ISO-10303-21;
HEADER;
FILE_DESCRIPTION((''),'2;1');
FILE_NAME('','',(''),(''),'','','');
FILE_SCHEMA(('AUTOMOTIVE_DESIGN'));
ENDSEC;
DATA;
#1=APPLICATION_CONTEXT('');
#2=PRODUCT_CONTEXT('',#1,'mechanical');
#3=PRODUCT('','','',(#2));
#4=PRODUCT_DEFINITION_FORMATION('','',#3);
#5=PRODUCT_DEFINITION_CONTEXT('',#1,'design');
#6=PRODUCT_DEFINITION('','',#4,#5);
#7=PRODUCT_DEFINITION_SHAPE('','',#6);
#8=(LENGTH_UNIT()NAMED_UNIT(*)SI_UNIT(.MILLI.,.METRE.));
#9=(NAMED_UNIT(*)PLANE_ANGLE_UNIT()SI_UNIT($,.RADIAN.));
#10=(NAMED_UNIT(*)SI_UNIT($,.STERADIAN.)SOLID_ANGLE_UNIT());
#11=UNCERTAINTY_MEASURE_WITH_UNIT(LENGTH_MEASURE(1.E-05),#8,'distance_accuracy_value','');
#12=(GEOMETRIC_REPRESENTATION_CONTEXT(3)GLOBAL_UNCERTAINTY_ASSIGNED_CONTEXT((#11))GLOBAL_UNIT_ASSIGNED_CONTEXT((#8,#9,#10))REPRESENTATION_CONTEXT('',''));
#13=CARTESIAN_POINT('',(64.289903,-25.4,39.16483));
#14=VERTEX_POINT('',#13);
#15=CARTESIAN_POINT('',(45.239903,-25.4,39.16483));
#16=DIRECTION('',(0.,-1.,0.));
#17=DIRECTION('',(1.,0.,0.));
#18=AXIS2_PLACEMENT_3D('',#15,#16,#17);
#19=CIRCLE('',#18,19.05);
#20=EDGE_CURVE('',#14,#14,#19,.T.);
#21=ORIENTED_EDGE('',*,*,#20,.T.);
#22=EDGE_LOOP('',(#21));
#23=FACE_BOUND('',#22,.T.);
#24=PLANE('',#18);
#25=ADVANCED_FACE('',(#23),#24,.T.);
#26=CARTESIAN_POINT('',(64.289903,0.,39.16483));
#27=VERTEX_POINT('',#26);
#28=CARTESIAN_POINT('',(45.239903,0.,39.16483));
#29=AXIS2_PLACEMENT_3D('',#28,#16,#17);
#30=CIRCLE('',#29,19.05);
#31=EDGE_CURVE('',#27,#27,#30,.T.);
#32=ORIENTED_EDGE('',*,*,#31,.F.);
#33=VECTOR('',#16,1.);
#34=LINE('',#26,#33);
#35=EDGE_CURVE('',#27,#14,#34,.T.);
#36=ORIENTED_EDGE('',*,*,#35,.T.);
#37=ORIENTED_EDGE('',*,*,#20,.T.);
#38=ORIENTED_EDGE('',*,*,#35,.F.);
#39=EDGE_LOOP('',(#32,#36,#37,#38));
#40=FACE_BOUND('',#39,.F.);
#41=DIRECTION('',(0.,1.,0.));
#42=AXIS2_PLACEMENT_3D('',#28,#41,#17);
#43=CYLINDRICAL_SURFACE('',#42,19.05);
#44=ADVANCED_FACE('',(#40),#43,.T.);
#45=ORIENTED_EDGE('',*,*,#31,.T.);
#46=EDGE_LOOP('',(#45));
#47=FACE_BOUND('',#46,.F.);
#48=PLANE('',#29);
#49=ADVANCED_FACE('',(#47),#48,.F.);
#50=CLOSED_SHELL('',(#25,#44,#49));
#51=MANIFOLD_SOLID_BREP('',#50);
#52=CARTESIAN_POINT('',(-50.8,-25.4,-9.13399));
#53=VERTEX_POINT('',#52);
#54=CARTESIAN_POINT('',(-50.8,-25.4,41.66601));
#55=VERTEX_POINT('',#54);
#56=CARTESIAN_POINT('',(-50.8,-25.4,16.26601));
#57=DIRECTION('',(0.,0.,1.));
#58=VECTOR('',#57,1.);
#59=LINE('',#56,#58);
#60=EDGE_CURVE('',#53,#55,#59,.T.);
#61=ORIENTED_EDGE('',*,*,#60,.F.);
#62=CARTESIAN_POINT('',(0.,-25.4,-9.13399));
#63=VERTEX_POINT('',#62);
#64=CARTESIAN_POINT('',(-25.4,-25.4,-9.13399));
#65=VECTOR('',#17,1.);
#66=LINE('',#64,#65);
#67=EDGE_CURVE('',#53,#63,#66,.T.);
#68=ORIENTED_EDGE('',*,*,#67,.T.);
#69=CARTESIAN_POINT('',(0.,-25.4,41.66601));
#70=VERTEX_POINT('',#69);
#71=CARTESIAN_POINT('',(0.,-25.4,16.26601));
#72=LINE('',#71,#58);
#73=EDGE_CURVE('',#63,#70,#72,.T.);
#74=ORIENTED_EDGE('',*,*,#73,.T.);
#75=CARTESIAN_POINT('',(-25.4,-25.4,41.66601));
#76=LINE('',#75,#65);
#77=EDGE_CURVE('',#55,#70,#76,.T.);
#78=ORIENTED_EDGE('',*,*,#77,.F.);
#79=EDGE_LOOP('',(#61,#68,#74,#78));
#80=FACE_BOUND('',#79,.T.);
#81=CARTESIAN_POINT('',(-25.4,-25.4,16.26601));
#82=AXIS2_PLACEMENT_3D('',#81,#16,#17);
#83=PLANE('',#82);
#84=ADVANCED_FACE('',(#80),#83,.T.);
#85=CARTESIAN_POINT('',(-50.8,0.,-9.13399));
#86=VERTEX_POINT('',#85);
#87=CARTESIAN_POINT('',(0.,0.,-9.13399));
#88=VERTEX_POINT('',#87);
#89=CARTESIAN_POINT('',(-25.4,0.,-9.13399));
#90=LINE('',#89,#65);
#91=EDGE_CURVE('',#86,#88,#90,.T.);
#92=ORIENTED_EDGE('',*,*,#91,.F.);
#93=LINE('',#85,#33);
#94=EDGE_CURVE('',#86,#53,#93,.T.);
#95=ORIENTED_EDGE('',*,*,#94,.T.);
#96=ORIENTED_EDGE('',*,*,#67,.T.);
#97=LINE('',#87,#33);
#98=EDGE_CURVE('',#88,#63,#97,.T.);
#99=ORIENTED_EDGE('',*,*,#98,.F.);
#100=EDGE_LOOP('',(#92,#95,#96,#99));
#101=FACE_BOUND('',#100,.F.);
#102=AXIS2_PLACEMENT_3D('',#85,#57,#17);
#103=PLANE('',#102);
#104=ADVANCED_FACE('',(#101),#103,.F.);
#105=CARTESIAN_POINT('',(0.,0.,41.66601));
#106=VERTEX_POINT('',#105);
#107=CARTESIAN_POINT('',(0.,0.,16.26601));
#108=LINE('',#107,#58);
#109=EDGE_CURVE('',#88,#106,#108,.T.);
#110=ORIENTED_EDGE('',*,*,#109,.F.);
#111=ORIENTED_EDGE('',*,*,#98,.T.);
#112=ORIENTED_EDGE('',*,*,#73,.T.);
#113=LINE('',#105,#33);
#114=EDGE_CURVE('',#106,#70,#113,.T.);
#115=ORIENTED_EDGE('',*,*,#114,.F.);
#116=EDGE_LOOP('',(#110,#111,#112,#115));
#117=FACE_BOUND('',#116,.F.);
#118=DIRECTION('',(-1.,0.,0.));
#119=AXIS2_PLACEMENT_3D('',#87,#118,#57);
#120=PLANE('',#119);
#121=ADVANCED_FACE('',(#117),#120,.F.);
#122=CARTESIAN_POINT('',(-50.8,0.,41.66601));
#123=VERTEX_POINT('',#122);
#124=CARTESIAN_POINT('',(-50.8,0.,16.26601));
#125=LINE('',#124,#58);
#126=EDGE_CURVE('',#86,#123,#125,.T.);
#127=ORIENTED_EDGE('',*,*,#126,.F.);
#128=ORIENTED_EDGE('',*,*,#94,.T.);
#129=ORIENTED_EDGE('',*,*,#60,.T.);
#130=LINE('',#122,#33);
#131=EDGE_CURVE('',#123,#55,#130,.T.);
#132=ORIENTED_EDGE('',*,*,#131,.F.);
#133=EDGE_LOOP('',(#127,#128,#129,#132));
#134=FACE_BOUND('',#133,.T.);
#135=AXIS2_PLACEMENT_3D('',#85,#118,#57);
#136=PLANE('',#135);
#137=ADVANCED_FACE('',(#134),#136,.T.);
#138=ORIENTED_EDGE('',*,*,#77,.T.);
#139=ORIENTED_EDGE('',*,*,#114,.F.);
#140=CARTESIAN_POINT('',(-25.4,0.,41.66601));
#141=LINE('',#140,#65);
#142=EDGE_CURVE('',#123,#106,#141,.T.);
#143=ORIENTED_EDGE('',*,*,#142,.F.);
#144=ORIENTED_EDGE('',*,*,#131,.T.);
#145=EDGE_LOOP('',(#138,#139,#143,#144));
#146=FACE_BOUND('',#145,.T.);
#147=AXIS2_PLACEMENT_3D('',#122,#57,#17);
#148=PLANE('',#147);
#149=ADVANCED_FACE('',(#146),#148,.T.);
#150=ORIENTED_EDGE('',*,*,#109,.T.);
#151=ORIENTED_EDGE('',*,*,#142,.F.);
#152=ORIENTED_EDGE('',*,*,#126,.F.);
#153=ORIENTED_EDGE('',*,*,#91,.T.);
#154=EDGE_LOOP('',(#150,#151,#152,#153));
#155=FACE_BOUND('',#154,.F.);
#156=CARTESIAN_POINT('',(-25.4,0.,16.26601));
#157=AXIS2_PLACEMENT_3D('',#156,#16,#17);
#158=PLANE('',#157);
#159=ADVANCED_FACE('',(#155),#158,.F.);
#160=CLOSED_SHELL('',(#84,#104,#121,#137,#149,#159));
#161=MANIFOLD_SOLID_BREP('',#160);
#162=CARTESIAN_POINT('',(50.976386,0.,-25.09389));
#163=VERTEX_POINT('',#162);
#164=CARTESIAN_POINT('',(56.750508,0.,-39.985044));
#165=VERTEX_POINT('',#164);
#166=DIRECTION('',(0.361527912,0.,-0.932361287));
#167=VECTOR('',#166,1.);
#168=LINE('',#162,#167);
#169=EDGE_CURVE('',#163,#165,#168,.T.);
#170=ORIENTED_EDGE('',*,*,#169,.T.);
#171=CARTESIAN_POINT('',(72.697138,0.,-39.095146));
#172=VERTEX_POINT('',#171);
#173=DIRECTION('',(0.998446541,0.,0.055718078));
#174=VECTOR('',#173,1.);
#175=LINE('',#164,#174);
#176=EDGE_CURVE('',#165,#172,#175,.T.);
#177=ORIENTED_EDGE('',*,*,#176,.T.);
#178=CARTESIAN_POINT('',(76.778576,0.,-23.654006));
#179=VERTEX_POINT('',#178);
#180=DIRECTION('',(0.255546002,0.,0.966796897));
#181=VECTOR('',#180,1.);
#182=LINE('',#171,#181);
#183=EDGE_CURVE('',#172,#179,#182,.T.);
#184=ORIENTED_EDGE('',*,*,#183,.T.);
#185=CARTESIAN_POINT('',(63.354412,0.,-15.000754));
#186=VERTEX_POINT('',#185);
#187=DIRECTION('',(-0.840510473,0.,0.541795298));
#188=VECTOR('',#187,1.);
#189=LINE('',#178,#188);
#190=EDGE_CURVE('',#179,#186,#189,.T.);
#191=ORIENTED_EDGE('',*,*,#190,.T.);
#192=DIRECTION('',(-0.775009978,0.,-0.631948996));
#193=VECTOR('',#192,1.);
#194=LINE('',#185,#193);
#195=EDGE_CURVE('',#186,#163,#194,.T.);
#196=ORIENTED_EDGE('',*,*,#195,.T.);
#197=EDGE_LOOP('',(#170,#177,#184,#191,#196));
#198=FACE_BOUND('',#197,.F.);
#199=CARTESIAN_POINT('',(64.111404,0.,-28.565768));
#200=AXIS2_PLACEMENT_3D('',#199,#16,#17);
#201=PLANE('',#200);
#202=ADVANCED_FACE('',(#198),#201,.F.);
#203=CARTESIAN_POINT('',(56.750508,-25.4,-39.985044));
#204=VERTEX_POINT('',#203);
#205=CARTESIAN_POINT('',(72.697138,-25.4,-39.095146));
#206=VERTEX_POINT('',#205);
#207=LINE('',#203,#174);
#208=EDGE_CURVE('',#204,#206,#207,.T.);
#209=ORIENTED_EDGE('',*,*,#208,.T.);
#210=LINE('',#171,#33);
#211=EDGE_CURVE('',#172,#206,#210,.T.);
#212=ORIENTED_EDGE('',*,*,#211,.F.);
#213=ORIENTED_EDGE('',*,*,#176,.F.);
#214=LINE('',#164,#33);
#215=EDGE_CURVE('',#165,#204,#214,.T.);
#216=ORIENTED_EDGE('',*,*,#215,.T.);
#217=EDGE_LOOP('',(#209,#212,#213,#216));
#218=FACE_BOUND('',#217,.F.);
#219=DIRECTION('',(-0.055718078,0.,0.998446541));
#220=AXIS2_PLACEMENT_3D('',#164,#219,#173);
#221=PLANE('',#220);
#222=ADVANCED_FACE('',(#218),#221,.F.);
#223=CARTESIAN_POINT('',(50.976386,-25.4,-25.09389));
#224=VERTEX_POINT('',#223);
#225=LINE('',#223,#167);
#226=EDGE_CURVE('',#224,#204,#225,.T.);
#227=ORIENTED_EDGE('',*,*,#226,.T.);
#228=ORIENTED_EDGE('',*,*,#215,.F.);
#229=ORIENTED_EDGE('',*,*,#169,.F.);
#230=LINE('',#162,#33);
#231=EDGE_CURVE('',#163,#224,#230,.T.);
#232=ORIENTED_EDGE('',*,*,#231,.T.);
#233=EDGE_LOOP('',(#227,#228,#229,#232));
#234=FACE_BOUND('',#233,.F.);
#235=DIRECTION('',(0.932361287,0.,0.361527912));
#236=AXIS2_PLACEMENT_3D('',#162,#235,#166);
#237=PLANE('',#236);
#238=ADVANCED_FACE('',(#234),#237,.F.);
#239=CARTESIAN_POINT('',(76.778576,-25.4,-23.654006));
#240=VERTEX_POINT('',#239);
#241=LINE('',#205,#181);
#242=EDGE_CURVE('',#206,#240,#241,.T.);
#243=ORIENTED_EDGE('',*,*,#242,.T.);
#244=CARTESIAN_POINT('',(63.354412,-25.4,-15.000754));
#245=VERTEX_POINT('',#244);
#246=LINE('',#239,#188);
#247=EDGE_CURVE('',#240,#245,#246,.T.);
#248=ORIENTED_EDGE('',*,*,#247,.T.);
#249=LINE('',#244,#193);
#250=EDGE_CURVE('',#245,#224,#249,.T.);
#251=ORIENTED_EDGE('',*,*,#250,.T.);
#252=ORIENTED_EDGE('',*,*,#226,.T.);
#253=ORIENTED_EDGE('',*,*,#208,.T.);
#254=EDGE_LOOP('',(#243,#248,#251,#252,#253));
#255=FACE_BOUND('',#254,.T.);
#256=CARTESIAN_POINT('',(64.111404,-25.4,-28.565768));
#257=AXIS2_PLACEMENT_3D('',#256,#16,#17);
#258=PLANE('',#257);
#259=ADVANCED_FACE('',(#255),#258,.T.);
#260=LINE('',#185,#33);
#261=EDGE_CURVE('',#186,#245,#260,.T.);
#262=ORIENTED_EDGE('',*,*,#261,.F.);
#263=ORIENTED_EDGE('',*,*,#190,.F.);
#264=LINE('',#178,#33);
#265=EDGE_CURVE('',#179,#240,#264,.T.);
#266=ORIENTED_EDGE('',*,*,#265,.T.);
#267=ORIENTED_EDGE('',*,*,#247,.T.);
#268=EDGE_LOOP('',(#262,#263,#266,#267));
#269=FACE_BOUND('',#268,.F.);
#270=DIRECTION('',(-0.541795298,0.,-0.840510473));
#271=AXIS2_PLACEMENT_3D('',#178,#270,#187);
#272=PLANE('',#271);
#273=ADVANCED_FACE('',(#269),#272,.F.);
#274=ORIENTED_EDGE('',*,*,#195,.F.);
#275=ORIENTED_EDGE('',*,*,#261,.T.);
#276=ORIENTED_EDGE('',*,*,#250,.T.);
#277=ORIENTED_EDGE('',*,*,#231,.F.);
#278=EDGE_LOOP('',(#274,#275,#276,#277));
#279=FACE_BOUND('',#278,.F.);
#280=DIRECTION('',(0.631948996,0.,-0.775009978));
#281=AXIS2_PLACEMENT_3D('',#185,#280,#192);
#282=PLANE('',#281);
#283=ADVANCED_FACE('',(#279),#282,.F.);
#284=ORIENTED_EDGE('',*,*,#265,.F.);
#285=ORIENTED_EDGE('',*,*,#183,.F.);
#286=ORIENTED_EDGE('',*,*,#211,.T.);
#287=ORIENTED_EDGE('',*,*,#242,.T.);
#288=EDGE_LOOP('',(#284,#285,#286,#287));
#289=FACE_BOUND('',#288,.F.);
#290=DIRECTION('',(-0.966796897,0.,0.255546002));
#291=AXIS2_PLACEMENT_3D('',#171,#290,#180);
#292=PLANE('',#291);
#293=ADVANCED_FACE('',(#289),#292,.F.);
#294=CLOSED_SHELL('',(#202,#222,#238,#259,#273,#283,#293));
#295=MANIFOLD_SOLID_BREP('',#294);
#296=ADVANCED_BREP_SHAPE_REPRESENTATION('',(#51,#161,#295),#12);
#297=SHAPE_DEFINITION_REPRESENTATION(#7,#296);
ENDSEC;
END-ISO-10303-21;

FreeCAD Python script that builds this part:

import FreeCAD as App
import Part
import Sketcher
from FreeCAD import Vector
Q = App.Units.Quantity

doc = App.newDocument("Part")
body = doc.addObject("PartDesign::Body", "Body")
body.AllowCompound = True

# Sketch on XZ plane
sketch1 = body.newObject("Sketcher::SketchObject", "Sketch")
sketch1.AttachmentSupport = (doc.getObject("XZ_Plane"), [""])
sketch1.MapMode = "FlatFace"
sketch1.addGeometry(Part.LineSegment(Vector(-51, 42, 0), Vector(-51, -9, 0)), False)
sketch1.addGeometry(Part.LineSegment(Vector(-51, -9, 0), Vector(0, -9, 0)), False)
sketch1.addGeometry(Part.LineSegment(Vector(0, -9, 0), Vector(0, 42, 0)), False)
sketch1.addGeometry(Part.LineSegment(Vector(0, 42, 0), Vector(-51, 42, 0)), False)
sketch1.addGeometry(Part.Circle(Vector(45, 39, 0), Vector(0, 0, 1), 19), False)
sketch1.addGeometry(Part.LineSegment(Vector(73, -39, 0), Vector(77, -24, 0)), False)
sketch1.addGeometry(Part.LineSegment(Vector(77, -24, 0), Vector(63, -15, 0)), False)
sketch1.addGeometry(Part.LineSegment(Vector(63, -15, 0), Vector(51, -25, 0)), False)
sketch1.addGeometry(Part.LineSegment(Vector(51, -25, 0), Vector(57, -40, 0)), False)
sketch1.addGeometry(Part.LineSegment(Vector(57, -40, 0), Vector(73, -39, 0)), False)
sketch1.addConstraint(Sketcher.Constraint("Coincident", 0, 2, 1, 1))
sketch1.addConstraint(Sketcher.Constraint("Coincident", 1, 2, 2, 1))
sketch1.addConstraint(Sketcher.Constraint("Coincident", 2, 2, 3, 1))
sketch1.addConstraint(Sketcher.Constraint("Coincident", 3, 2, 0, 1))
sketch1.addConstraint(Sketcher.Constraint("Coincident", 5, 2, 6, 1))
sketch1.addConstraint(Sketcher.Constraint("Coincident", 6, 2, 7, 1))
sketch1.addConstraint(Sketcher.Constraint("Coincident", 7, 2, 8, 1))
sketch1.addConstraint(Sketcher.Constraint("Coincident", 8, 2, 9, 1))
sketch1.addConstraint(Sketcher.Constraint("Coincident", 9, 2, 5, 1))
sketch1.addConstraint(Sketcher.Constraint("Vertical", 0))
sketch1.addConstraint(Sketcher.Constraint("Horizontal", 1))
sketch1.addConstraint(Sketcher.Constraint("Vertical", 2))
sketch1.addConstraint(Sketcher.Constraint("Horizontal", 3))
sketch1.addConstraint(Sketcher.Constraint("PointOnObject", 1, 2, -2))
sketch1.addConstraint(Sketcher.Constraint("Equal", 3, 0))
sketch1.addConstraint(Sketcher.Constraint("Equal", 5, 6))
sketch1.addConstraint(Sketcher.Constraint("Equal", 6, 7))
sketch1.addConstraint(Sketcher.Constraint("Equal", 7, 8))
sketch1.addConstraint(Sketcher.Constraint("Equal", 8, 9))
sketch1.addConstraint(Sketcher.Constraint("Diameter", 4, Q("1.5 in")))
sketch1.addConstraint(Sketcher.Constraint("DistanceX", 1, 1, 1, 2, Q("2 in")))
sketch1.addConstraint(Sketcher.Constraint("DistanceY", 7, 2, 1, 2, 15.9599))
sketch1.addConstraint(Sketcher.Constraint("DistanceY", 8, 2, 9, 2, 0.889898))
sketch1.addConstraint(Sketcher.Constraint("Distance", 5, 15.971441))
sketch1.addConstraint(Sketcher.Constraint("DistanceY", -1, 1, 4, 3, 39.16483))
sketch1.addConstraint(Sketcher.Constraint("DistanceY", 0, 2, -1, 1, 9.13399))
sketch1.addConstraint(Sketcher.Constraint("DistanceX", -1, 1, 8, 2, 56.750508))
sketch1.addConstraint(Sketcher.Constraint("DistanceY", 5, 2, 6, 2, 8.653252))
sketch1.addConstraint(Sketcher.Constraint("DistanceX", 4, 3, 6, 2, 18.114509))
sketch1.addConstraint(Sketcher.Constraint("DistanceX", 7, 2, 5, 2, 25.80219))
pad1 = body.newObject("PartDesign::Pad", "Pad")
pad1.Profile = sketch1
pad1.Length = Q("1 in")

doc.recompute()
